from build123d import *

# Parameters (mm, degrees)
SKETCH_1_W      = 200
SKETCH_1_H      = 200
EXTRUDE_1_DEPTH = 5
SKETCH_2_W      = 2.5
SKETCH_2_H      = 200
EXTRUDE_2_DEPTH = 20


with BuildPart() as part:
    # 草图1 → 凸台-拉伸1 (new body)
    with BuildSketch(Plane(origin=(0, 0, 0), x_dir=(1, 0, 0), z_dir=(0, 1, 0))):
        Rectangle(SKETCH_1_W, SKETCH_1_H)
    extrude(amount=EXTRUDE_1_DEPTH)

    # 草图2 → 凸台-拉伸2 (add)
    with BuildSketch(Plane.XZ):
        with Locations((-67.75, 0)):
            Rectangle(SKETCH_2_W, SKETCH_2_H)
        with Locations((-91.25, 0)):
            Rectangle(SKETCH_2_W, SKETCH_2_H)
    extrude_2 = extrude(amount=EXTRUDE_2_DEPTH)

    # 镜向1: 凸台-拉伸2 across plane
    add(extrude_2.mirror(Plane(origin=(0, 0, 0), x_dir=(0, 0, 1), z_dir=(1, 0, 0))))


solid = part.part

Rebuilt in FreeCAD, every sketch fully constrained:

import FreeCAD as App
import Part
import Sketcher


def add_polygon(sketch, points):
    """Adds a closed chain of lines whose ends are joined by coincident constraints."""
    first, n = sketch.GeometryCount, len(points)
    for a, b in zip(points, points[1:] + points[:1]):
        sketch.addGeometry(Part.LineSegment(App.Vector(*a, 0), App.Vector(*b, 0)), False)
    for i in range(n):
        sketch.addConstraint(Sketcher.Constraint("Coincident", first + i, 2, first + (i + 1) % n, 1))

doc = App.newDocument("Part")
body = doc.addObject("PartDesign::Body", "Body")

sketch1 = body.newObject("Sketcher::SketchObject", "Sketch")
sketch1.AttachmentSupport = (doc.getObject("XZ_Plane"), [""])
sketch1.MapMode = "FlatFace"
add_polygon(sketch1, [(-100, -100), (-100, 100), (100, 100), (100, -100)])
sketch1.addConstraint(Sketcher.Constraint("Vertical", 0))
sketch1.addConstraint(Sketcher.Constraint("Horizontal", 1))
sketch1.addConstraint(Sketcher.Constraint("Vertical", 2))
sketch1.addConstraint(Sketcher.Constraint("Horizontal", 3))
sketch1.addConstraint(Sketcher.Constraint("Symmetric", 0, 2, 2, 2, -1, 1))
sketch1.addConstraint(Sketcher.Constraint("Equal", 3, 0))
sketch1.addConstraint(Sketcher.Constraint("DistanceX", 1, 1, 1, 2, 200.0))
pad1 = body.newObject("PartDesign::Pad", "Pad")
pad1.Profile = sketch1
pad1.Length = 5
pad1.Reversed = True

sketch2 = body.newObject("Sketcher::SketchObject", "Sketch001")
sketch2.AttachmentSupport = (doc.getObject("XZ_Plane"), [""])
sketch2.MapMode = "FlatFace"
add_polygon(sketch2, [(-69, 100), (-69, -100), (-66.5, -100), (-66.5, 100)])
add_polygon(sketch2, [(-92.5, 100), (-92.5, -100), (-90, -100), (-90, 100)])
sketch2.addConstraint(Sketcher.Constraint("Vertical", 0))
sketch2.addConstraint(Sketcher.Constraint("Horizontal", 1))
sketch2.addConstraint(Sketcher.Constraint("Vertical", 2))
sketch2.addConstraint(Sketcher.Constraint("Horizontal", 3))
sketch2.addConstraint(Sketcher.Constraint("Vertical", 4))
sketch2.addConstraint(Sketcher.Constraint("Horizontal", 5))
sketch2.addConstraint(Sketcher.Constraint("Vertical", 6))
sketch2.addConstraint(Sketcher.Constraint("Horizontal", 7))
sketch2.addConstraint(Sketcher.Constraint("Horizontal", 1, 2, 4, 2))
sketch2.addConstraint(Sketcher.Constraint("Horizontal", 3, 2, 6, 2))
sketch2.addConstraint(Sketcher.Constraint("Equal", 3, 5))
sketch2.addConstraint(Sketcher.Constraint("DistanceY", 0, 2, 0, 1, 200.0))
sketch2.addConstraint(Sketcher.Constraint("DistanceX", 1, 1, 1, 2, 2.5))
sketch2.addConstraint(Sketcher.Constraint("DistanceX", 0, 2, -1, 1, 69.0))
sketch2.addConstraint(Sketcher.Constraint("DistanceY", 0, 2, -1, 1, 100.0))
sketch2.addConstraint(Sketcher.Constraint("DistanceX", 5, 2, -1, 1, 90.0))
pad2 = body.newObject("PartDesign::Pad", "Pad001")
pad2.Profile = sketch2
pad2.Length = 20
doc.recompute()

mirrored = body.newObject("PartDesign::Mirrored", "Mirrored")
mirrored.Originals = [pad2]
mirrored.MirrorPlane = (doc.getObject("YZ_Plane"), [""])
body.Tip = mirrored

doc.recompute()
